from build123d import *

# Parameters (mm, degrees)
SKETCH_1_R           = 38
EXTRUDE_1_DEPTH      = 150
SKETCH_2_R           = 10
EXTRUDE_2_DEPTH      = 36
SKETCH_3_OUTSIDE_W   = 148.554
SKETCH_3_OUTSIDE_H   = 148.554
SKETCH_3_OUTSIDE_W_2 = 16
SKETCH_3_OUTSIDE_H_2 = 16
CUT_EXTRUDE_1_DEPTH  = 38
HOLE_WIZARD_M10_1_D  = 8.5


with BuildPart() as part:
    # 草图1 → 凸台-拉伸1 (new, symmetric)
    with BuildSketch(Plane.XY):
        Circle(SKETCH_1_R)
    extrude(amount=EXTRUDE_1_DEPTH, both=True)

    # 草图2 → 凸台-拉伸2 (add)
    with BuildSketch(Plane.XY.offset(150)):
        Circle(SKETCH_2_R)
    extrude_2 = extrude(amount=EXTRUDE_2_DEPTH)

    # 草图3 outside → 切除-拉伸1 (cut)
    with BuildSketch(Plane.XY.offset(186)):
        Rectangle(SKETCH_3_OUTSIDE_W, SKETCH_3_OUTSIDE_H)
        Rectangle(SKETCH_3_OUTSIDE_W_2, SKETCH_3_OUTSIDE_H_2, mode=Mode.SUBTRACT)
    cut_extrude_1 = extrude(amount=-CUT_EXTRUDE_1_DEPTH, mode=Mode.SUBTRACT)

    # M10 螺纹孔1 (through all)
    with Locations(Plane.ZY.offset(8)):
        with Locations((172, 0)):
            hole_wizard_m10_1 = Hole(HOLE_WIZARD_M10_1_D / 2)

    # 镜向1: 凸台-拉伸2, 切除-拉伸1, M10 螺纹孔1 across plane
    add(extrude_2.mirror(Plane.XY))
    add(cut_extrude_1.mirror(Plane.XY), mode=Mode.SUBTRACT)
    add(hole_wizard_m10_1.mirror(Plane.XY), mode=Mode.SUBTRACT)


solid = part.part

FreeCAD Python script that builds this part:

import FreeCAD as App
import Part
import Sketcher

V = App.Vector

doc = App.newDocument("Part")
body = doc.addObject("PartDesign::Body", "Body")

sketch1 = body.newObject("Sketcher::SketchObject", "Sketch")
sketch1.AttachmentSupport = (doc.getObject("XY_Plane"), [""])
sketch1.MapMode = "FlatFace"
sketch1.addGeometry(Part.Circle(V(0, 0, 0), V(0, 0, 1), 38), False)
sketch1.addConstraint([
    Sketcher.Constraint("Coincident", 0, 3, -1, 1),
    Sketcher.Constraint("Diameter", 0, 76.0),
])
pad1 = body.newObject("PartDesign::Pad", "Pad")
pad1.Profile = sketch1
pad1.Length = 300
pad1.Midplane = True

sketch2 = body.newObject("Sketcher::SketchObject", "Sketch001")
sketch2.AttachmentSupport = (doc.getObject("XY_Plane"), [""])
sketch2.MapMode = "FlatFace"
sketch2.AttachmentOffset = App.Placement(V(0, 0, 150), App.Rotation())
sketch2.addGeometry(Part.Circle(V(0, 0, 0), V(0, 0, 1), 10), False)
sketch2.addConstraint([
    Sketcher.Constraint("Coincident", 0, 3, -1, 1),
    Sketcher.Constraint("Diameter", 0, 20.0),
])
pad2 = body.newObject("PartDesign::Pad", "Pad001")
pad2.Profile = sketch2
pad2.Length = 36

sketch3 = body.newObject("Sketcher::SketchObject", "Sketch002")
sketch3.AttachmentSupport = (doc.getObject("XY_Plane"), [""])
sketch3.MapMode = "FlatFace"
sketch3.AttachmentOffset = App.Placement(V(0, 0, 186), App.Rotation())
sketch3.addGeometry([
    Part.LineSegment(V(-74, 74, 0), V(-74, -74, 0)),
    Part.LineSegment(V(-74, -74, 0), V(74, -74, 0)),
    Part.LineSegment(V(74, -74, 0), V(74, 74, 0)),
    Part.LineSegment(V(74, 74, 0), V(-74, 74, 0)),
    Part.LineSegment(V(8, -8, 0), V(-8, -8, 0)),
    Part.LineSegment(V(-8, -8, 0), V(-8, 8, 0)),
    Part.LineSegment(V(-8, 8, 0), V(8, 8, 0)),
    Part.LineSegment(V(8, 8, 0), V(8, -8, 0)),
], False)
sketch3.addConstraint([
    Sketcher.Constraint("Coincident", 0, 2, 1, 1),
    Sketcher.Constraint("Coincident", 1, 2, 2, 1),
    Sketcher.Constraint("Coincident", 2, 2, 3, 1),
    Sketcher.Constraint("Coincident", 3, 2, 0, 1),
    Sketcher.Constraint("Coincident", 4, 2, 5, 1),
    Sketcher.Constraint("Coincident", 5, 2, 6, 1),
    Sketcher.Constraint("Coincident", 6, 2, 7, 1),
    Sketcher.Constraint("Coincident", 7, 2, 4, 1),
    Sketcher.Constraint("Vertical", 0),
    Sketcher.Constraint("Horizontal", 1),
    Sketcher.Constraint("Vertical", 2),
    Sketcher.Constraint("Horizontal", 3),
    Sketcher.Constraint("Horizontal", 4),
    Sketcher.Constraint("Vertical", 5),
    Sketcher.Constraint("Horizontal", 6),
    Sketcher.Constraint("Vertical", 7),
    Sketcher.Constraint("Symmetric", 0, 2, 2, 2, -1, 1),
    Sketcher.Constraint("Symmetric", 4, 2, 6, 2, -1, 1),
    Sketcher.Constraint("Equal", 3, 0),
    Sketcher.Constraint("Equal", 6, 5),
    Sketcher.Constraint("DistanceX", 4, 2, 4, 1, 16.0),
    Sketcher.Constraint("DistanceX", 1, 1, 1, 2, 148.554),
])
pocket1 = body.newObject("PartDesign::Pocket", "Pocket")
pocket1.Profile = sketch3
pocket1.Length = 38

sketch4 = body.newObject("Sketcher::SketchObject", "Sketch003")
sketch4.AttachmentSupport = (doc.getObject("YZ_Plane"), [""])
sketch4.MapMode = "FlatFace"
sketch4.AttachmentOffset = App.Placement(V(0, 0, -8), App.Rotation())
sketch4.addGeometry(Part.Circle(V(0, 172, 0), V(0, 0, 1), 4.2), False)
sketch4.addConstraint([
    Sketcher.Constraint("PointOnObject", 0, 3, -2),
    Sketcher.Constraint("Diameter", 0, 8.5),
    Sketcher.Constraint("DistanceY", -1, 1, 0, 3, 172.0),
])
doc.recompute()
hole = body.newObject("PartDesign::Hole", "Hole")
hole.Profile = sketch4
hole.ThreadType = "None"
hole.Diameter = 8.5
hole.DepthType = "ThroughAll"
hole.Reversed = True
doc.recompute()

mirrored = body.newObject("PartDesign::Mirrored", "Mirrored")
mirrored.Originals = [pad2, pocket1, hole]
mirrored.MirrorPlane = (doc.getObject("XY_Plane"), [""])
body.Tip = mirrored

doc.recompute()
